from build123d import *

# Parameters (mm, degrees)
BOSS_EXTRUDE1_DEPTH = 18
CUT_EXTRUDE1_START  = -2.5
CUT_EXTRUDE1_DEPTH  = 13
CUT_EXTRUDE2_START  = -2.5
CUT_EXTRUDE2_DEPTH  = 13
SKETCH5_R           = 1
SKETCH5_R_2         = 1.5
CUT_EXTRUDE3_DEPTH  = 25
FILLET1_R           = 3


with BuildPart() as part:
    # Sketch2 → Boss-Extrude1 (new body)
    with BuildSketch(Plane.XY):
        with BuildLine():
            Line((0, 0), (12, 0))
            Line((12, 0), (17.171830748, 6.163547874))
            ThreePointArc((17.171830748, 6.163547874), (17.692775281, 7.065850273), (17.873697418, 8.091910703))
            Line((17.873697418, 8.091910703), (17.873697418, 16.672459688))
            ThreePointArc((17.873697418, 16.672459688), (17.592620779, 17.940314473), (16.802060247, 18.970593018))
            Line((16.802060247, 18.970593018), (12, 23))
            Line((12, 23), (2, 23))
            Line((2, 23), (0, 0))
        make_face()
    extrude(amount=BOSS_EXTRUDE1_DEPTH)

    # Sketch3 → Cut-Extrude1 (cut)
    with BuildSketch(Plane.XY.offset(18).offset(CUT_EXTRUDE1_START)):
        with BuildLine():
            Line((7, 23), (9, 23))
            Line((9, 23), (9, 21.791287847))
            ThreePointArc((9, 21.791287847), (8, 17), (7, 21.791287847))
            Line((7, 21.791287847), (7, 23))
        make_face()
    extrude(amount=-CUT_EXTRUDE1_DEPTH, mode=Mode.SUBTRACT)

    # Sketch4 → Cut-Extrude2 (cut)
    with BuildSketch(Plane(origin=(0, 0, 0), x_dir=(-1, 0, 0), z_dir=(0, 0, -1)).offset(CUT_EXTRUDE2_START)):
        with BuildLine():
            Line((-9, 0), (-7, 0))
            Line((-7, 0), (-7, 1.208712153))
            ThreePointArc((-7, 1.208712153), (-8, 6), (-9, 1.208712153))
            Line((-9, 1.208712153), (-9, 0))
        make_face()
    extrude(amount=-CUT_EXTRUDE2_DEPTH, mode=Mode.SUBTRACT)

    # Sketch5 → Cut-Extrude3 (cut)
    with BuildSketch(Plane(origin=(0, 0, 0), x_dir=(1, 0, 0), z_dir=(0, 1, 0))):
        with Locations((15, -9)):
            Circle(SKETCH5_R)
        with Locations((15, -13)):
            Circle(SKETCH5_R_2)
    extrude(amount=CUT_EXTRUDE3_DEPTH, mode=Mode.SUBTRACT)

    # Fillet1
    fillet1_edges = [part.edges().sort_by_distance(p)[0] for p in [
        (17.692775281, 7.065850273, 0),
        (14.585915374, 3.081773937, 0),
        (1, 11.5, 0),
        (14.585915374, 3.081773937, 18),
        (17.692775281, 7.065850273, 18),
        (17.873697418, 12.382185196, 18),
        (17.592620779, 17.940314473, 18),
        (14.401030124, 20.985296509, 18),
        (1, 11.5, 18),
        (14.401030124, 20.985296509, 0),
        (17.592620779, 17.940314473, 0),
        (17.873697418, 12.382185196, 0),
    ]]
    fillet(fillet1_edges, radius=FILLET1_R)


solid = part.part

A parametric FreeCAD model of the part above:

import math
import FreeCAD as App
import Part
import Sketcher
from FreeCAD import Vector
Q = App.Units.Quantity


def edges_at(feature, points):
    """Names of the edges that pass closest to the given points."""
    edges = feature.Shape.Edges
    near = lambda p: min(range(len(edges)), key=lambda i: edges[i].distToShape(Part.Vertex(*p))[0])
    return sorted({f"Edge{near(p) + 1}" for p in points})

doc = App.newDocument("Part")
body = doc.addObject("PartDesign::Body", "Body")

# Sketch on XY plane
sketch1 = body.newObject("Sketcher::SketchObject", "Sketch")
sketch1.AttachmentSupport = (doc.getObject("XY_Plane"), [""])
sketch1.MapMode = "FlatFace"
sketch1.addGeometry(Part.LineSegment(Vector(0, 0, 0), Vector(12, 0, 0)), False)
sketch1.addGeometry(Part.LineSegment(Vector(12, 0, 0), Vector(17.2, 6.2, 0)), False)
sketch1.addGeometry(Part.ArcOfCircle(Part.Circle(Vector(14.9, 8.1, 0), Vector(0, 0, 1), 3), math.radians(-40), math.radians(0)), False)
sketch1.addGeometry(Part.LineSegment(Vector(17.9, 8.1, 0), Vector(17.9, 16.7, 0)), False)
sketch1.addGeometry(Part.ArcOfCircle(Part.Circle(Vector(14.9, 16.7, 0), Vector(0, 0, 1), 3), math.radians(0), math.radians(50)), False)
sketch1.addGeometry(Part.LineSegment(Vector(16.8, 19, 0), Vector(12, 23, 0)), False)
sketch1.addGeometry(Part.LineSegment(Vector(12, 23, 0), Vector(2, 23, 0)), False)
sketch1.addGeometry(Part.LineSegment(Vector(2, 23, 0), Vector(0, 0, 0)), False)
sketch1.addConstraint(Sketcher.Constraint("Coincident", 0, 2, 1, 1))
sketch1.addConstraint(Sketcher.Constraint("Tangent", 1, 2, 2, 1))
sketch1.addConstraint(Sketcher.Constraint("Tangent", 2, 2, 3, 1))
sketch1.addConstraint(Sketcher.Constraint("Tangent", 3, 2, 4, 1))
sketch1.addConstraint(Sketcher.Constraint("Tangent", 4, 2, 5, 1))
sketch1.addConstraint(Sketcher.Constraint("Coincident", 5, 2, 6, 1))
sketch1.addConstraint(Sketcher.Constraint("Coincident", 6, 2, 7, 1))
sketch1.addConstraint(Sketcher.Constraint("Coincident", 7, 2, 0, 1))
sketch1.addConstraint(Sketcher.Constraint("Horizontal", 0))
sketch1.addConstraint(Sketcher.Constraint("Vertical", 3))
sketch1.addConstraint(Sketcher.Constraint("Horizontal", 6))
sketch1.addConstraint(Sketcher.Constraint("Coincident", 7, 2, -1, 1))
sketch1.addConstraint(Sketcher.Constraint("Equal", 2, 4))
sketch1.addConstraint(Sketcher.Constraint("Perpendicular", 1, 5))
sketch1.addConstraint(Sketcher.Constraint("Vertical", 0, 2, 5, 2))
sketch1.addConstraint(Sketcher.Constraint("Radius", 2, 3.0))
sketch1.addConstraint(Sketcher.Constraint("DistanceX", 0, 1, 0, 2, 12.0))
sketch1.addConstraint(Sketcher.Constraint("DistanceX", 6, 2, 6, 1, 10.0))
sketch1.addConstraint(Sketcher.Constraint("Angle", 1, Q("50 deg")))
sketch1.addConstraint(Sketcher.Constraint("DistanceY", -1, 1, 5, 2, 23.0))
sketch1.addConstraint(Sketcher.Constraint("DistanceY", 3, 1, 3, 2, 8.580549))
pad1 = body.newObject("PartDesign::Pad", "Pad")
pad1.Profile = sketch1
pad1.Length = 18

# Sketch on XY plane
sketch2 = body.newObject("Sketcher::SketchObject", "Sketch001")
sketch2.AttachmentSupport = (doc.getObject("XY_Plane"), [""])
sketch2.MapMode = "FlatFace"
sketch2.AttachmentOffset = App.Placement(Vector(0, 0, 15.5), App.Rotation())
sketch2.addGeometry(Part.LineSegment(Vector(9, 23, 0), Vector(7, 23, 0)), False)
sketch2.addGeometry(Part.LineSegment(Vector(7, 23, 0), Vector(7, 21.8, 0)), False)
sketch2.addGeometry(Part.ArcOfCircle(Part.Circle(Vector(8, 19.5, 0), Vector(0, 0, 1), 2.5), math.radians(114), math.radians(426)), False)
sketch2.addGeometry(Part.LineSegment(Vector(9, 21.8, 0), Vector(9, 23, 0)), False)
sketch2.addConstraint(Sketcher.Constraint("Coincident", 0, 2, 1, 1))
sketch2.addConstraint(Sketcher.Constraint("Coincident", 1, 2, 2, 1))
sketch2.addConstraint(Sketcher.Constraint("Coincident", 2, 2, 3, 1))
sketch2.addConstraint(Sketcher.Constraint("Coincident", 3, 2, 0, 1))
sketch2.addConstraint(Sketcher.Constraint("Horizontal", 0))
sketch2.addConstraint(Sketcher.Constraint("Vertical", 1))
sketch2.addConstraint(Sketcher.Constraint("Vertical", 3))
sketch2.addConstraint(Sketcher.Constraint("Horizontal", 1, 2, 2, 2))
sketch2.addConstraint(Sketcher.Constraint("Radius", 2, 2.5))
sketch2.addConstraint(Sketcher.Constraint("DistanceX", 0, 2, 0, 1, 2.0))
sketch2.addConstraint(Sketcher.Constraint("DistanceX", -1, 1, 2, 3, 8.0))
sketch2.addConstraint(Sketcher.Constraint("DistanceY", -1, 1, 0, 2, 23.0))
sketch2.addConstraint(Sketcher.Constraint("DistanceY", -1, 1, 2, 3, 19.5))
pocket1 = body.newObject("PartDesign::Pocket", "Pocket")
pocket1.Profile = sketch2
pocket1.Length = 13

# Sketch on XY plane
sketch3 = body.newObject("Sketcher::SketchObject", "Sketch002")
sketch3.AttachmentSupport = (doc.getObject("XY_Plane"), [""])
sketch3.MapMode = "FlatFace"
sketch3.AttachmentOffset = App.Placement(Vector(0, 0, 2.5), App.Rotation())
sketch3.addGeometry(Part.LineSegment(Vector(9, 0, 0), Vector(7, 0, 0)), False)
sketch3.addGeometry(Part.LineSegment(Vector(7, 0, 0), Vector(7, 1.2, 0)), False)
sketch3.addGeometry(Part.ArcOfCircle(Part.Circle(Vector(8, 3.5, 0), Vector(0, 0, 1), 2.5), math.radians(-66), math.radians(246)), False)
sketch3.addGeometry(Part.LineSegment(Vector(9, 1.2, 0), Vector(9, 0, 0)), False)
sketch3.addConstraint(Sketcher.Constraint("Coincident", 0, 2, 1, 1))
sketch3.addConstraint(Sketcher.Constraint("Coincident", 1, 2, 2, 2))
sketch3.addConstraint(Sketcher.Constraint("Coincident", 2, 1, 3, 1))
sketch3.addConstraint(Sketcher.Constraint("Coincident", 3, 2, 0, 1))
sketch3.addConstraint(Sketcher.Constraint("Horizontal", 0))
sketch3.addConstraint(Sketcher.Constraint("Vertical", 1))
sketch3.addConstraint(Sketcher.Constraint("Vertical", 3))
sketch3.addConstraint(Sketcher.Constraint("PointOnObject", 0, 2, -1))
sketch3.addConstraint(Sketcher.Constraint("Horizontal", 1, 2, 2, 1))
sketch3.addConstraint(Sketcher.Constraint("Radius", 2, 2.5))
sketch3.addConstraint(Sketcher.Constraint("DistanceX", 0, 2, 0, 1, 2.0))
sketch3.addConstraint(Sketcher.Constraint("DistanceX", -1, 1, 2, 3, 8.0))
sketch3.addConstraint(Sketcher.Constraint("DistanceY", -1, 1, 2, 3, 3.5))
pocket2 = body.newObject("PartDesign::Pocket", "Pocket001")
pocket2.Profile = sketch3
pocket2.Length = 13
pocket2.Reversed = True

# Sketch on XZ plane
sketch4 = body.newObject("Sketcher::SketchObject", "Sketch003")
sketch4.AttachmentSupport = (doc.getObject("XZ_Plane"), [""])
sketch4.MapMode = "FlatFace"
sketch4.addGeometry(Part.Circle(Vector(15, 9, 0), Vector(0, 0, 1), 1), False)
sketch4.addGeometry(Part.Circle(Vector(15, 13, 0), Vector(0, 0, 1), 1.5), False)
sketch4.addConstraint(Sketcher.Constraint("Vertical", 0, 3, 1, 3))
sketch4.addConstraint(Sketcher.Constraint("Diameter", 0, 2.0))
sketch4.addConstraint(Sketcher.Constraint("Diameter", 1, 3.0))
sketch4.addConstraint(Sketcher.Constraint("DistanceX", -1, 1, 0, 3, 15.0))
sketch4.addConstraint(Sketcher.Constraint("DistanceY", -1, 1, 0, 3, 9.0))
sketch4.addConstraint(Sketcher.Constraint("DistanceY", -1, 1, 1, 3, 13.0))
pocket3 = body.newObject("PartDesign::Pocket", "Pocket002")
pocket3.Profile = sketch4
pocket3.Length = 25
doc.recompute()

fillet = body.newObject("PartDesign::Fillet", "Fillet")
fillet.Base = (pocket3, edges_at(pocket3, [
    (17.693, 7.066, 0),
    (14.586, 3.082, 0),
    (1, 11.5, 0),
    (14.586, 3.082, 18),
    (17.693, 7.066, 18),
    (17.874, 12.382, 18),
    (17.593, 17.94, 18),
    (14.401, 20.985, 18),
    (1, 11.5, 18),
    (14.401, 20.985, 0),
    (17.593, 17.94, 0),
    (17.874, 12.382, 0),
]))
fillet.Radius = 3

doc.recompute()
